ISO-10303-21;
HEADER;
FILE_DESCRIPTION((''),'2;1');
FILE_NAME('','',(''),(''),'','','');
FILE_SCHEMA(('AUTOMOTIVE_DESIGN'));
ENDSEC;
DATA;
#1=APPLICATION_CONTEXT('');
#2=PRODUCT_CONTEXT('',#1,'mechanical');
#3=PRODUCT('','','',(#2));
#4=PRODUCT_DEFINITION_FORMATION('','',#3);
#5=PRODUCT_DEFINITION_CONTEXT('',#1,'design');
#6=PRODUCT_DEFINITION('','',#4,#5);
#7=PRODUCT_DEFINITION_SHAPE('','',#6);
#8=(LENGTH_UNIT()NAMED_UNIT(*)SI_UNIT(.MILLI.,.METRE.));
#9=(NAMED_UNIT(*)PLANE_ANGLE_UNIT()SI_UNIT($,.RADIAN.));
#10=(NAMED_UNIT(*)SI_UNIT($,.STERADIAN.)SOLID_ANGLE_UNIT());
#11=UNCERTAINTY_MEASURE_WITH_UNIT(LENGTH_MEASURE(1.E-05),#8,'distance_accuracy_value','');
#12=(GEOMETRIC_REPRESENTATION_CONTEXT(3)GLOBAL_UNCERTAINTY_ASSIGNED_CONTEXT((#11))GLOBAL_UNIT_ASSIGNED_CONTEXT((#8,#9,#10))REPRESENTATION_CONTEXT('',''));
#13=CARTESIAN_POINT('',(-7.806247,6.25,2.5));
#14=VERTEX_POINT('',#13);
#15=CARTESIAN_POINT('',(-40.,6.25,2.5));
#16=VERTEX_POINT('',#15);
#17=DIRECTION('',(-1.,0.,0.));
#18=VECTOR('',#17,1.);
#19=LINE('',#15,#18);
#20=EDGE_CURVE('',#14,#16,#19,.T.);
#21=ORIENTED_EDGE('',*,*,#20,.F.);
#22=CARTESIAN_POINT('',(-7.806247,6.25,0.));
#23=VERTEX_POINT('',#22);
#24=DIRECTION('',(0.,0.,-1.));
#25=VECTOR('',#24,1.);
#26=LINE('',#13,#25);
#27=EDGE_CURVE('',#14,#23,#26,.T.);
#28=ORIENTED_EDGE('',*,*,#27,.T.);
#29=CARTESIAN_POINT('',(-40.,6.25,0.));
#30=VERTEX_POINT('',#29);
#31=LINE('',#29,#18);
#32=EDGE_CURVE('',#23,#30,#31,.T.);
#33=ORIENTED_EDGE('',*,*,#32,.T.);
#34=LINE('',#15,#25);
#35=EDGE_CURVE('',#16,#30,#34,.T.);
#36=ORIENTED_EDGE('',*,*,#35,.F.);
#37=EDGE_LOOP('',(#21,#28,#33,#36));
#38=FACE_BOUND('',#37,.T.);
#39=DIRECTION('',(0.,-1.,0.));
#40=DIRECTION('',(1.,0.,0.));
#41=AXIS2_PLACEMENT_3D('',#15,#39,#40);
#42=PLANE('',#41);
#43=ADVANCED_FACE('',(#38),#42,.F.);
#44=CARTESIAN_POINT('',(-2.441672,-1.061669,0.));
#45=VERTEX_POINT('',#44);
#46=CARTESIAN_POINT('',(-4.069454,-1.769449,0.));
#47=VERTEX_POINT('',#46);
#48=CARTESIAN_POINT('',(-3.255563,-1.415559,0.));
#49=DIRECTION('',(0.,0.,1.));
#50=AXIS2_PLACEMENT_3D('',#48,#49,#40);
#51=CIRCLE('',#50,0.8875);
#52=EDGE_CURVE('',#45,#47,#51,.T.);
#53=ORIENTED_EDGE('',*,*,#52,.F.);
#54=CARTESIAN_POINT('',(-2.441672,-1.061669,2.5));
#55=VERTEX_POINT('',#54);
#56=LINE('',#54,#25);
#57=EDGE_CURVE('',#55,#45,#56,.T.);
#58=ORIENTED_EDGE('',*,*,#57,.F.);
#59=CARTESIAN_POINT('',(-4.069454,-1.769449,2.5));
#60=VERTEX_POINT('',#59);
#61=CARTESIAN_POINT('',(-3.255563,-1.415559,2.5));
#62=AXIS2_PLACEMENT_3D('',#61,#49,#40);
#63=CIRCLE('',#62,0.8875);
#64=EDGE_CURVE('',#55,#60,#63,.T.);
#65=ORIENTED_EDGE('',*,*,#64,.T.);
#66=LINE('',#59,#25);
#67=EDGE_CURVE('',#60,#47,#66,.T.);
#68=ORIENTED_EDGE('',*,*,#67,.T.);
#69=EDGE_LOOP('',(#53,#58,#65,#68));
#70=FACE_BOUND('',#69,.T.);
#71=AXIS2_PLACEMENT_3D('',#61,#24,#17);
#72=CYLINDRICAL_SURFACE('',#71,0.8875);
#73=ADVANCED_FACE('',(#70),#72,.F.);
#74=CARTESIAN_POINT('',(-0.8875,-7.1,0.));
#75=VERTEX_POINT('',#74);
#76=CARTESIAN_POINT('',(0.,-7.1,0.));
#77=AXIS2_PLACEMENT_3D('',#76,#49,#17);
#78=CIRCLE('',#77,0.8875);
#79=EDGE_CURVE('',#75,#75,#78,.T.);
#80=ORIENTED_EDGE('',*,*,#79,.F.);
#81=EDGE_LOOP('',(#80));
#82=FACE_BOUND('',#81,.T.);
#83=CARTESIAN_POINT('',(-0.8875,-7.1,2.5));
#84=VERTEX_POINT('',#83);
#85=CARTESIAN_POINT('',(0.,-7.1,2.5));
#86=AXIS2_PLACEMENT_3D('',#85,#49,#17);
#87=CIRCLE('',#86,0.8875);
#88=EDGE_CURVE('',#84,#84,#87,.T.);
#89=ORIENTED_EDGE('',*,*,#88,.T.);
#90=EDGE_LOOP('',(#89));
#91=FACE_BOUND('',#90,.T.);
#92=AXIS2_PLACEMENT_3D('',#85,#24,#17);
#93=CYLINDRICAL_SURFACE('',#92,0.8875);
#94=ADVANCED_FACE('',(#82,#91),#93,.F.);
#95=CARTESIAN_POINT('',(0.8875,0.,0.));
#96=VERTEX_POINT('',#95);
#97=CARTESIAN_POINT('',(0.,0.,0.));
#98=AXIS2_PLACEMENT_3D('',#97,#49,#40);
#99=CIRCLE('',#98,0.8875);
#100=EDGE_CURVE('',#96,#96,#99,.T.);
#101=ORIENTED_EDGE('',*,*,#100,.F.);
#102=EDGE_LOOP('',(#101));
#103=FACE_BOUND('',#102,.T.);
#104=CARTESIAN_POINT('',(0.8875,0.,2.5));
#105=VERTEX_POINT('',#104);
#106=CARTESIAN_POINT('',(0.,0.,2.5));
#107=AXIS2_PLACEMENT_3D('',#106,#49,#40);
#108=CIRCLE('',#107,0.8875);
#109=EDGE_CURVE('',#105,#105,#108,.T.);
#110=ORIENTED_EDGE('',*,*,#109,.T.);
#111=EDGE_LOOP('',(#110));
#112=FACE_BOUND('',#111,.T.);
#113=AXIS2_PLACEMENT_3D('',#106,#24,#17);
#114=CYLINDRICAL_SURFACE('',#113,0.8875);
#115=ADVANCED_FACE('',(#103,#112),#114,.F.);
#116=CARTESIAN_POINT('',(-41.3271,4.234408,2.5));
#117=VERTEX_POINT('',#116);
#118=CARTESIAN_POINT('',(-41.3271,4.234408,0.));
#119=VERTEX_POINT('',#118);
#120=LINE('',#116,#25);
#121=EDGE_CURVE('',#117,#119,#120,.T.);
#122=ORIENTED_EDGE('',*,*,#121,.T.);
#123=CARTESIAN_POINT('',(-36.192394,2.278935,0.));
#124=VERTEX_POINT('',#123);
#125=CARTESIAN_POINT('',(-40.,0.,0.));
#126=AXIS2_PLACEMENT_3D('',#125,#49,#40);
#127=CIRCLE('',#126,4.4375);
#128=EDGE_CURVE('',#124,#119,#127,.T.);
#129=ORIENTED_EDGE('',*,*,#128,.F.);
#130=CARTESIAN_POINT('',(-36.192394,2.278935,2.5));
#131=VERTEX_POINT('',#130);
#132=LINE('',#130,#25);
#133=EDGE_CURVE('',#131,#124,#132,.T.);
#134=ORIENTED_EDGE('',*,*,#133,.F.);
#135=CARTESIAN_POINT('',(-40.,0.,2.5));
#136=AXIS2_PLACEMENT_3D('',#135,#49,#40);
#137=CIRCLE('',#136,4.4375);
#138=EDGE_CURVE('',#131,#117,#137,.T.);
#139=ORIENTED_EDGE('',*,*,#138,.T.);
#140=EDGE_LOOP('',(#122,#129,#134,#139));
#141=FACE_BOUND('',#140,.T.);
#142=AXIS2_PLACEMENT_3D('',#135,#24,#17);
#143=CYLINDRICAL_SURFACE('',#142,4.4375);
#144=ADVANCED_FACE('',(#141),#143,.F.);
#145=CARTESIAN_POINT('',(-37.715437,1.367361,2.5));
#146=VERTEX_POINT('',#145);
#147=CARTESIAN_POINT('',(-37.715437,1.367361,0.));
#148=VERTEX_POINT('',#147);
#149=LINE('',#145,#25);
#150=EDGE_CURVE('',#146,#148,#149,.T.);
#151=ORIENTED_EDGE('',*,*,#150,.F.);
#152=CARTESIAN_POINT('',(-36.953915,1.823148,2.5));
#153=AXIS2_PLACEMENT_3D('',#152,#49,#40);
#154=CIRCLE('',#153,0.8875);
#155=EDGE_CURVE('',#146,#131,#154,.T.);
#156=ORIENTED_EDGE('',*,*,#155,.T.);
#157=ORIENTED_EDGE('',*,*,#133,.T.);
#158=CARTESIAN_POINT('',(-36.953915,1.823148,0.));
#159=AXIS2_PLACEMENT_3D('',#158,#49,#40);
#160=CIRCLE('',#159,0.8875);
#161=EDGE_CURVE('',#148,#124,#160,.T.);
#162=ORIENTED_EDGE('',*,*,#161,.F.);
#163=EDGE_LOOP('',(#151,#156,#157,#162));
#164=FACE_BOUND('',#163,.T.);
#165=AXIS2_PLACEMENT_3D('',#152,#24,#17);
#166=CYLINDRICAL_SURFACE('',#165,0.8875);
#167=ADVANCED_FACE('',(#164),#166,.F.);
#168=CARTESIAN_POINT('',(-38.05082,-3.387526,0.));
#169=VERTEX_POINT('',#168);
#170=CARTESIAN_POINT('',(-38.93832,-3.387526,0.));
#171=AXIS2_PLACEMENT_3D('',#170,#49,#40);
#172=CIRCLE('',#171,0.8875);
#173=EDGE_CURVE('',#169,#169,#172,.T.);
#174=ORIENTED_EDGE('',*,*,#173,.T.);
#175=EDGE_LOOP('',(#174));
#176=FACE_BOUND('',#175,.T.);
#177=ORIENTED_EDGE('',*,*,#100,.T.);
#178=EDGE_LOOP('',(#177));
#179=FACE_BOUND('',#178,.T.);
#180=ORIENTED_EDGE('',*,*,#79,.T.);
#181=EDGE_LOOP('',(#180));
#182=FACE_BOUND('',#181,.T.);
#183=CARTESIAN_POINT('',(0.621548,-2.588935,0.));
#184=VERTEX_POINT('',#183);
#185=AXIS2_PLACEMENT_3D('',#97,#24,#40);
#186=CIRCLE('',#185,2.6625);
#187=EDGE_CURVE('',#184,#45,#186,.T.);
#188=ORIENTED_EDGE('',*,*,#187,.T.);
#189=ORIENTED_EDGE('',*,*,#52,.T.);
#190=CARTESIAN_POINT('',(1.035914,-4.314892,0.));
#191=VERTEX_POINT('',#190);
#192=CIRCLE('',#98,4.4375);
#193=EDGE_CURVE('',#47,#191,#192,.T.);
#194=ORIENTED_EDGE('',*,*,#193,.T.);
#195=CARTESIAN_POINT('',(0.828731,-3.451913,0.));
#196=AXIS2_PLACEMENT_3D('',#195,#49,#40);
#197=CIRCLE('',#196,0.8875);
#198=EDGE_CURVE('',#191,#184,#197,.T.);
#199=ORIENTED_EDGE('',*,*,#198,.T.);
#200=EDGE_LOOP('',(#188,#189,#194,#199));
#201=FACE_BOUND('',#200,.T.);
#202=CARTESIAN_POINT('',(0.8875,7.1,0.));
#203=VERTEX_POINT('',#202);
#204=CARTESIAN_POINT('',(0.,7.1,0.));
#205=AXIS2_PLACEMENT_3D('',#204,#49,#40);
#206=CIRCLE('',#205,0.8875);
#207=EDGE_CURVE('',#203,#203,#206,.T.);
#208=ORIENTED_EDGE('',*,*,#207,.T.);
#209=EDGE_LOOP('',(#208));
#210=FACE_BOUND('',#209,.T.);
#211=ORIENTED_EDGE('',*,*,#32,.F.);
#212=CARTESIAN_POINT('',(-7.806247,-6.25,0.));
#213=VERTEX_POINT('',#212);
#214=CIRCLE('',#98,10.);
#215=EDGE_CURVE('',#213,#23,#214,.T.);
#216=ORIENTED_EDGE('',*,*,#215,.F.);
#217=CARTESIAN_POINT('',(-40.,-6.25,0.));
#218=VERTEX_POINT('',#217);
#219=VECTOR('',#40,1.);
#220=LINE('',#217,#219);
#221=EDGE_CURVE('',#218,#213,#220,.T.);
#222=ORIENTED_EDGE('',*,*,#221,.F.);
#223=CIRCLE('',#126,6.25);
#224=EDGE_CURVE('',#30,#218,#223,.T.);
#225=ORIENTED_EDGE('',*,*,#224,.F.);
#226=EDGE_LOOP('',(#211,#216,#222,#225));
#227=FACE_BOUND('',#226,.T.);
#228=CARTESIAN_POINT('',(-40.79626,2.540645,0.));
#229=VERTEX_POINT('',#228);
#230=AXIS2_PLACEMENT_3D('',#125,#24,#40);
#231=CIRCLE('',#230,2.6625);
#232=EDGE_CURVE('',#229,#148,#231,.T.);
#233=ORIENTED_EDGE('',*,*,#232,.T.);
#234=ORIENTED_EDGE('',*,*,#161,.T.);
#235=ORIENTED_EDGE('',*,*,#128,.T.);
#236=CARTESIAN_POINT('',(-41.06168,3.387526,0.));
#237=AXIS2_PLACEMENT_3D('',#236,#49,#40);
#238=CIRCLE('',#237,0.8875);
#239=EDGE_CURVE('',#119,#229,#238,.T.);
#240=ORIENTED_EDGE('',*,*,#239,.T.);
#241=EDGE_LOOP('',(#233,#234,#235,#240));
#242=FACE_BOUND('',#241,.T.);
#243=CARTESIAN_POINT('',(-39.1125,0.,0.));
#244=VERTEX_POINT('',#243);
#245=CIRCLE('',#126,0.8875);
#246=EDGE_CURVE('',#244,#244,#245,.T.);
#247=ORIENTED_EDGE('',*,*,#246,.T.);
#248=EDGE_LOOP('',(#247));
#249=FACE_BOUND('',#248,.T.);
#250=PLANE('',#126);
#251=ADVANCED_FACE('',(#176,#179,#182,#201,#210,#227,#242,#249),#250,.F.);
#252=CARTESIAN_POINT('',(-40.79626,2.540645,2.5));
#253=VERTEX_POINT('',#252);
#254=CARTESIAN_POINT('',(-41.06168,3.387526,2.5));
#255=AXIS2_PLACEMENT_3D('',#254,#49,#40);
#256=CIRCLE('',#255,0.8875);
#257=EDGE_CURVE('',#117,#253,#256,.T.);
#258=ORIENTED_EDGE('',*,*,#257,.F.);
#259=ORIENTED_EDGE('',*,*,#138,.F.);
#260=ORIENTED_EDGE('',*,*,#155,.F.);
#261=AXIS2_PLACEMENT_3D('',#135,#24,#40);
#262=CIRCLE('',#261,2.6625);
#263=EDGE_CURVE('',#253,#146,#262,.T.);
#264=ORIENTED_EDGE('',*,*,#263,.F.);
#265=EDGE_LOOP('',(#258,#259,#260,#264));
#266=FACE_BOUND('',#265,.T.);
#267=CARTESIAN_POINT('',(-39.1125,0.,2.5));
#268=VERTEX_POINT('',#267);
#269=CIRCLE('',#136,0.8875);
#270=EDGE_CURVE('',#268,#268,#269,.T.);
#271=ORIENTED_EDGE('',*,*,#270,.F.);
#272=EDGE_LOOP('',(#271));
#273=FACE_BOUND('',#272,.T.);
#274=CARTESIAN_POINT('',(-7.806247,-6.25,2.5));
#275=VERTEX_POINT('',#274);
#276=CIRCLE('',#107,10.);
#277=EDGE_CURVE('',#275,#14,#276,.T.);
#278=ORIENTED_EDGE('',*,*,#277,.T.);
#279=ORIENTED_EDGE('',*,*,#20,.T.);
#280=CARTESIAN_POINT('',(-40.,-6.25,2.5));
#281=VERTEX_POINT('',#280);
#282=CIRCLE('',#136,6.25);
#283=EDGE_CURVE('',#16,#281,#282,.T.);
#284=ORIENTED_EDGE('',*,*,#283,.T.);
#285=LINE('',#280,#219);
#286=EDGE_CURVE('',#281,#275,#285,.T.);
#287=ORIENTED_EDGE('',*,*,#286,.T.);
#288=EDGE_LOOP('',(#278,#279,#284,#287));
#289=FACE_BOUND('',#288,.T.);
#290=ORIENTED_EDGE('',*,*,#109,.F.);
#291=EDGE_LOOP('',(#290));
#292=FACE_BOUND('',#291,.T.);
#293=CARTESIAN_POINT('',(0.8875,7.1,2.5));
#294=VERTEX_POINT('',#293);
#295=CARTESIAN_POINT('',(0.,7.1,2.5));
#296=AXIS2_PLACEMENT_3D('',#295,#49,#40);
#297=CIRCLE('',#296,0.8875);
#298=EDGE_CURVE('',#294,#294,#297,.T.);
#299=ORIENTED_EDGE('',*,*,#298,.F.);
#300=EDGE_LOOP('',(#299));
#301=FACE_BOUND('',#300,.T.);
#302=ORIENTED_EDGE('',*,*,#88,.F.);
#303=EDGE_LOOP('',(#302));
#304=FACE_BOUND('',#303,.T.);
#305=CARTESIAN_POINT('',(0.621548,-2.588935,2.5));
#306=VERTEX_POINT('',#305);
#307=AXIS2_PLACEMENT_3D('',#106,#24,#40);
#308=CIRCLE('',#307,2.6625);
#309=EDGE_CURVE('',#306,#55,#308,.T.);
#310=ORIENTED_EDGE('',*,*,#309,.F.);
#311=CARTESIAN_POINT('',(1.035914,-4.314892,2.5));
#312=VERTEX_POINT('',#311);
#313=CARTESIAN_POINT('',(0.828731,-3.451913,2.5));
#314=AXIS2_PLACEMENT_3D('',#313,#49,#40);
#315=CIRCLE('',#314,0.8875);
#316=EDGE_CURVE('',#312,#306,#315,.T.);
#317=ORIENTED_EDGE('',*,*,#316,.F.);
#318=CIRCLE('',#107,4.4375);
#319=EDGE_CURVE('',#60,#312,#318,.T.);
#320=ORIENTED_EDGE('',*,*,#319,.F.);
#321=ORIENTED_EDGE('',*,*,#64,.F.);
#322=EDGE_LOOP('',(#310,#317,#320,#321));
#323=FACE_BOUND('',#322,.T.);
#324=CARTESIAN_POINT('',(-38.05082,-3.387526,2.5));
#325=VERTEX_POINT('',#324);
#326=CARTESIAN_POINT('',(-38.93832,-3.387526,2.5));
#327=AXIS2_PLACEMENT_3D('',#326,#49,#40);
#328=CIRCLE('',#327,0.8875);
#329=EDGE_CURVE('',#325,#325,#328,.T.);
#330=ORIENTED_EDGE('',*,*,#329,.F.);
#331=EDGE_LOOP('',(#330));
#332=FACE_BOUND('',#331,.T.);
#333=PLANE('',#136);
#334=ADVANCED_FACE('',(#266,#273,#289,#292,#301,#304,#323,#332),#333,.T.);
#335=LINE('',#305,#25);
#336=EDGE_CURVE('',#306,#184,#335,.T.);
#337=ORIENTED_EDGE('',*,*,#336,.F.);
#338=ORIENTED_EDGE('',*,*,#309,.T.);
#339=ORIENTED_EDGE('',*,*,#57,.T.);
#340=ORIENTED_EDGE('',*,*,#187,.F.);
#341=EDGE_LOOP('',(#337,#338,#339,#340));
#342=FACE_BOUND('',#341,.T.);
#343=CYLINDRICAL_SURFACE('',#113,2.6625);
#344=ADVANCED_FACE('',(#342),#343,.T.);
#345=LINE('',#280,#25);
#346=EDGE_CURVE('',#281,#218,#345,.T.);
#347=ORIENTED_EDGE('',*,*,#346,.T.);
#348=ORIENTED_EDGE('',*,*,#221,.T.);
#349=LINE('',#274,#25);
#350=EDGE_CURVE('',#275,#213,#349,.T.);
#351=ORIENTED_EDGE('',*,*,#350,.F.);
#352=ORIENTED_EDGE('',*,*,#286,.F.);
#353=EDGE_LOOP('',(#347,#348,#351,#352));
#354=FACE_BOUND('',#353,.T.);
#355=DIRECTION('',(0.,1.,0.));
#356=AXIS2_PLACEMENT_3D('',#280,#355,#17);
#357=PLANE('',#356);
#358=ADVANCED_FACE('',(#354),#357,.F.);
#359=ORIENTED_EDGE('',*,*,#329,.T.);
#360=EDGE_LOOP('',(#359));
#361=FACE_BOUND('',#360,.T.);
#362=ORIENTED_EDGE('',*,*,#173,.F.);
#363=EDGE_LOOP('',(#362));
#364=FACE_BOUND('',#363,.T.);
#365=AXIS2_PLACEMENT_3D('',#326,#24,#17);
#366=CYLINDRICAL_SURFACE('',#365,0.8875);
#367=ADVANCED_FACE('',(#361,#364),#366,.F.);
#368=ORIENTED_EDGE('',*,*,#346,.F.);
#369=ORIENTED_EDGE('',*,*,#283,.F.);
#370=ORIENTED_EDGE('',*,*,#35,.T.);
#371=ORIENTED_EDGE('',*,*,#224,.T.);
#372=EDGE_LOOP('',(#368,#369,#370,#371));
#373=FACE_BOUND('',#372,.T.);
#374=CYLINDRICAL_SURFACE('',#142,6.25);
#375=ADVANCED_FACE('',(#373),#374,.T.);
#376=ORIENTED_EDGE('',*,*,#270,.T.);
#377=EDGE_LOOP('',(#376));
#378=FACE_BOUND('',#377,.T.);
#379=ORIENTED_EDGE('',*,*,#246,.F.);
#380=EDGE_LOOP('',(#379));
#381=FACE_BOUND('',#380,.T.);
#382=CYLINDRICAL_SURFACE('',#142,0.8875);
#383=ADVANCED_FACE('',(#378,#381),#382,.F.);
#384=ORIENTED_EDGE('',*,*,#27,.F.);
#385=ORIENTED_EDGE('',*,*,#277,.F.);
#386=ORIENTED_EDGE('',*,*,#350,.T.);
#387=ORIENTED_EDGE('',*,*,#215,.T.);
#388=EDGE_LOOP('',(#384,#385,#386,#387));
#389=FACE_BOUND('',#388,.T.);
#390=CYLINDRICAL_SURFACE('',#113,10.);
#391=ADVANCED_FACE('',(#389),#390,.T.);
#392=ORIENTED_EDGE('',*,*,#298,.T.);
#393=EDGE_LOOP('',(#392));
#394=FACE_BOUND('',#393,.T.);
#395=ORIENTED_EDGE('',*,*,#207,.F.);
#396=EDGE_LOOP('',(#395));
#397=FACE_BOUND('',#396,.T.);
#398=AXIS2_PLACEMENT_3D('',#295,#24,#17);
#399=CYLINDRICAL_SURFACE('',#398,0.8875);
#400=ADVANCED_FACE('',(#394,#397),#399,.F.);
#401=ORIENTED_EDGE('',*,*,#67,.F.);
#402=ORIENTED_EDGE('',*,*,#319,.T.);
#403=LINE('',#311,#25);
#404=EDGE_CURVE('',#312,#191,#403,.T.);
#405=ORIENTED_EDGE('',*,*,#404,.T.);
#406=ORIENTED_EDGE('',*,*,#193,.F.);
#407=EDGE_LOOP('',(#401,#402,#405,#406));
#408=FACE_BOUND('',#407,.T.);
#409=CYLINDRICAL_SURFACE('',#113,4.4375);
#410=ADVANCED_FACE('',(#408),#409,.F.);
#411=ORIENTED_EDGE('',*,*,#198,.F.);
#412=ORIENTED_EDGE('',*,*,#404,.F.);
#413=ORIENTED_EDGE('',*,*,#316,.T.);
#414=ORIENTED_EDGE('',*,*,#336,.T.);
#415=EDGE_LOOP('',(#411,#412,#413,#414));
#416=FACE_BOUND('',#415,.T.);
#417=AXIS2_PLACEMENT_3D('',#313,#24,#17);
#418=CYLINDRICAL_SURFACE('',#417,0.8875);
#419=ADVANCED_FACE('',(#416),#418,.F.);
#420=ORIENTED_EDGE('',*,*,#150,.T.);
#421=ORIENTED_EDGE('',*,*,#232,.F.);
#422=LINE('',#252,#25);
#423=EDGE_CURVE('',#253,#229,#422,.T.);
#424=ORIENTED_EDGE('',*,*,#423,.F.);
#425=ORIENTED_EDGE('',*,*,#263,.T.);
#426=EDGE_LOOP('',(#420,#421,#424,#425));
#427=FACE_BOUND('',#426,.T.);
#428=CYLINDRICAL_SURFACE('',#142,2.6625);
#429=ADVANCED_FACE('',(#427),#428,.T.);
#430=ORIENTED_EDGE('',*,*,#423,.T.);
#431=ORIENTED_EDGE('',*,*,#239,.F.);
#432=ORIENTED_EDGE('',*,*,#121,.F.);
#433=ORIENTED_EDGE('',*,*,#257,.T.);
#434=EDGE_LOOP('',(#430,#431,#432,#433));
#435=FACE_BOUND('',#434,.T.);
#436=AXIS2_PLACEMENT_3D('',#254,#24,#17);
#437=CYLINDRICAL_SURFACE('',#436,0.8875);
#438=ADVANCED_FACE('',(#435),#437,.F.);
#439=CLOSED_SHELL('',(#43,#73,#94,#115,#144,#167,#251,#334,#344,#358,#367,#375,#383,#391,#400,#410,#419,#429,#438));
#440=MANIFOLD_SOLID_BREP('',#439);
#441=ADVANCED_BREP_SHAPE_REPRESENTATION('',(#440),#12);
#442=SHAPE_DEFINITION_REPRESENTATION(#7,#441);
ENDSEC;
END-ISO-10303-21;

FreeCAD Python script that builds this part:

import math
import FreeCAD as App
import Part
import Sketcher

V = App.Vector

doc = App.newDocument("Part")
params = doc.addObject("Spreadsheet::Sheet", "Params")
for row, (alias, value) in enumerate([
    ("sketch1_radius", "10 mm"),
    ("sketch1_radius2", "6.25 mm"),
    ("pad1_length", "2.5 mm"),
], start=1):
    params.set(f"A{row}", alias)
    params.set(f"B{row}", "=" + value)
    params.setAlias(f"B{row}", alias)

body = doc.addObject("PartDesign::Body", "Body")

# Sketch on XY plane
sketch1 = body.newObject("Sketcher::SketchObject", "Sketch")
sketch1.AttachmentSupport = (doc.getObject("XY_Plane"), [""])
sketch1.MapMode = "FlatFace"
sketch1.addGeometry([
    Part.LineSegment(V(-7.8, 6.2, 0), V(-40, 6.2, 0)),  # 0
    Part.ArcOfCircle(Part.Circle(V(-40, 0, 0), V(0, 0, 1), 6.2), math.radians(90), math.radians(270)),  # 1
    Part.LineSegment(V(-40, -6.2, 0), V(-7.8, -6.2, 0)),  # 2
    Part.ArcOfCircle(Part.Circle(V(0, 0, 0), V(0, 0, 1), 10), math.radians(-141), math.radians(141)),  # 3
    Part.Circle(V(0, -7.1, 0), V(0, 0, 1), 0.9),  # 4
    Part.ArcOfCircle(Part.Circle(V(-3.3, -1.4, 0), V(0, 0, 1), 0.9), math.radians(24), math.radians(203)),  # 5
    Part.ArcOfCircle(Part.Circle(V(0, 0, 0), V(0, 0, 1), 2.7), math.radians(-156), math.radians(-77)),  # 6
    Part.ArcOfCircle(Part.Circle(V(0.8, -3.5, 0), V(0, 0, 1), 0.9), math.radians(-76), math.radians(103)),  # 7
    Part.ArcOfCircle(Part.Circle(V(0, 0, 0), V(0, 0, 1), 4.4), math.radians(-157), math.radians(-76)),  # 8
    Part.Circle(V(-38.9, -3.4, 0), V(0, 0, 1), 0.9),  # 9
    Part.Circle(V(0, 0, 0), V(0, 0, 1), 0.9),  # 10
    Part.Circle(V(0, 7.1, 0), V(0, 0, 1), 0.9),  # 11
    Part.Circle(V(-40, 0, 0), V(0, 0, 1), 0.9),  # 12
    Part.ArcOfCircle(Part.Circle(V(-37, 1.8, 0), V(0, 0, 1), 0.9), math.radians(-149), math.radians(31)),  # 13
    Part.ArcOfCircle(Part.Circle(V(-40, 0, 0), V(0, 0, 1), 2.7), math.radians(31), math.radians(107)),  # 14
    Part.ArcOfCircle(Part.Circle(V(-41.1, 3.4, 0), V(0, 0, 1), 0.9), math.radians(107), math.radians(287)),  # 15
    Part.ArcOfCircle(Part.Circle(V(-40, 0, 0), V(0, 0, 1), 4.4), math.radians(31), math.radians(107)),  # 16
], False)
sketch1.addConstraint([
    Sketcher.Constraint("Tangent", 0, 2, 1, 1),
    Sketcher.Constraint("Tangent", 1, 2, 2, 1),
    Sketcher.Constraint("Coincident", 2, 2, 3, 1),
    Sketcher.Constraint("Coincident", 3, 2, 0, 1),
    Sketcher.Constraint("Tangent", 5, 1, 6, 1),
    Sketcher.Constraint("Tangent", 6, 2, 7, 2),
    Sketcher.Constraint("Tangent", 7, 1, 8, 2),
    Sketcher.Constraint("Tangent", 8, 1, 5, 2),
    Sketcher.Constraint("Tangent", 13, 1, 14, 1),
    Sketcher.Constraint("Tangent", 14, 2, 15, 2),
    Sketcher.Constraint("Tangent", 15, 1, 16, 2),
    Sketcher.Constraint("Tangent", 16, 1, 13, 2),
    Sketcher.Constraint("Horizontal", 0),
    Sketcher.Constraint("Horizontal", 2),
    Sketcher.Constraint("Coincident", 3, 3, -1, 1),
    Sketcher.Constraint("Coincident", 6, 3, -1, 1),
    Sketcher.Constraint("Coincident", 8, 3, -1, 1),
    Sketcher.Constraint("Coincident", 10, 3, -1, 1),
    Sketcher.Constraint("Coincident", 12, 3, 1, 3),
    Sketcher.Constraint("Coincident", 14, 3, 1, 3),
    Sketcher.Constraint("Coincident", 16, 3, 1, 3),
    Sketcher.Constraint("Equal", 4, 5),
    Sketcher.Constraint("Equal", 7, 9),
    Sketcher.Constraint("Equal", 9, 10),
    Sketcher.Constraint("Equal", 10, 11),
    Sketcher.Constraint("Equal", 11, 12),
    Sketcher.Constraint("Equal", 12, 13),
    Sketcher.Constraint("Equal", 6, 14),
    Sketcher.Constraint("Symmetric", 4, 3, 11, 3, -1, 1),
    Sketcher.Constraint("PointOnObject", 1, 3, -1),
    Sketcher.Constraint("PointOnObject", 4, 3, -2),
    Sketcher.Constraint("Radius", 3, 10.0),
    Sketcher.Constraint("Radius", 1, 6.25),
    Sketcher.Constraint("Diameter", 4, 1.775),
    Sketcher.Constraint("DistanceX", 1, 3, -1, 1, 40.0),
    Sketcher.Constraint("DistanceY", 4, 3, -1, 1, 7.1),
    Sketcher.Constraint("Radius", 6, 2.6625),
    Sketcher.Constraint("DistanceX", 15, 1, -1, 1, 41.3271),
    Sketcher.Constraint("DistanceY", 5, 3, -1, 1, 1.415559),
    Sketcher.Constraint("DistanceX", -1, 1, 7, 3, 0.828731),
    Sketcher.Constraint("DistanceX", 9, 3, -1, 1, 38.93832),
    Sketcher.Constraint("DistanceY", -1, 1, 13, 3, 1.823148),
    Sketcher.Constraint("DistanceY", 9, 3, -1, 1, 3.387526),
])
sketch1.setExpression("Constraints[31]", "Params.sketch1_radius")
sketch1.setExpression("Constraints[32]", "Params.sketch1_radius2")
pad1 = body.newObject("PartDesign::Pad", "Pad")
pad1.Profile = sketch1
pad1.setExpression("Length", "Params.pad1_length")

doc.recompute()
